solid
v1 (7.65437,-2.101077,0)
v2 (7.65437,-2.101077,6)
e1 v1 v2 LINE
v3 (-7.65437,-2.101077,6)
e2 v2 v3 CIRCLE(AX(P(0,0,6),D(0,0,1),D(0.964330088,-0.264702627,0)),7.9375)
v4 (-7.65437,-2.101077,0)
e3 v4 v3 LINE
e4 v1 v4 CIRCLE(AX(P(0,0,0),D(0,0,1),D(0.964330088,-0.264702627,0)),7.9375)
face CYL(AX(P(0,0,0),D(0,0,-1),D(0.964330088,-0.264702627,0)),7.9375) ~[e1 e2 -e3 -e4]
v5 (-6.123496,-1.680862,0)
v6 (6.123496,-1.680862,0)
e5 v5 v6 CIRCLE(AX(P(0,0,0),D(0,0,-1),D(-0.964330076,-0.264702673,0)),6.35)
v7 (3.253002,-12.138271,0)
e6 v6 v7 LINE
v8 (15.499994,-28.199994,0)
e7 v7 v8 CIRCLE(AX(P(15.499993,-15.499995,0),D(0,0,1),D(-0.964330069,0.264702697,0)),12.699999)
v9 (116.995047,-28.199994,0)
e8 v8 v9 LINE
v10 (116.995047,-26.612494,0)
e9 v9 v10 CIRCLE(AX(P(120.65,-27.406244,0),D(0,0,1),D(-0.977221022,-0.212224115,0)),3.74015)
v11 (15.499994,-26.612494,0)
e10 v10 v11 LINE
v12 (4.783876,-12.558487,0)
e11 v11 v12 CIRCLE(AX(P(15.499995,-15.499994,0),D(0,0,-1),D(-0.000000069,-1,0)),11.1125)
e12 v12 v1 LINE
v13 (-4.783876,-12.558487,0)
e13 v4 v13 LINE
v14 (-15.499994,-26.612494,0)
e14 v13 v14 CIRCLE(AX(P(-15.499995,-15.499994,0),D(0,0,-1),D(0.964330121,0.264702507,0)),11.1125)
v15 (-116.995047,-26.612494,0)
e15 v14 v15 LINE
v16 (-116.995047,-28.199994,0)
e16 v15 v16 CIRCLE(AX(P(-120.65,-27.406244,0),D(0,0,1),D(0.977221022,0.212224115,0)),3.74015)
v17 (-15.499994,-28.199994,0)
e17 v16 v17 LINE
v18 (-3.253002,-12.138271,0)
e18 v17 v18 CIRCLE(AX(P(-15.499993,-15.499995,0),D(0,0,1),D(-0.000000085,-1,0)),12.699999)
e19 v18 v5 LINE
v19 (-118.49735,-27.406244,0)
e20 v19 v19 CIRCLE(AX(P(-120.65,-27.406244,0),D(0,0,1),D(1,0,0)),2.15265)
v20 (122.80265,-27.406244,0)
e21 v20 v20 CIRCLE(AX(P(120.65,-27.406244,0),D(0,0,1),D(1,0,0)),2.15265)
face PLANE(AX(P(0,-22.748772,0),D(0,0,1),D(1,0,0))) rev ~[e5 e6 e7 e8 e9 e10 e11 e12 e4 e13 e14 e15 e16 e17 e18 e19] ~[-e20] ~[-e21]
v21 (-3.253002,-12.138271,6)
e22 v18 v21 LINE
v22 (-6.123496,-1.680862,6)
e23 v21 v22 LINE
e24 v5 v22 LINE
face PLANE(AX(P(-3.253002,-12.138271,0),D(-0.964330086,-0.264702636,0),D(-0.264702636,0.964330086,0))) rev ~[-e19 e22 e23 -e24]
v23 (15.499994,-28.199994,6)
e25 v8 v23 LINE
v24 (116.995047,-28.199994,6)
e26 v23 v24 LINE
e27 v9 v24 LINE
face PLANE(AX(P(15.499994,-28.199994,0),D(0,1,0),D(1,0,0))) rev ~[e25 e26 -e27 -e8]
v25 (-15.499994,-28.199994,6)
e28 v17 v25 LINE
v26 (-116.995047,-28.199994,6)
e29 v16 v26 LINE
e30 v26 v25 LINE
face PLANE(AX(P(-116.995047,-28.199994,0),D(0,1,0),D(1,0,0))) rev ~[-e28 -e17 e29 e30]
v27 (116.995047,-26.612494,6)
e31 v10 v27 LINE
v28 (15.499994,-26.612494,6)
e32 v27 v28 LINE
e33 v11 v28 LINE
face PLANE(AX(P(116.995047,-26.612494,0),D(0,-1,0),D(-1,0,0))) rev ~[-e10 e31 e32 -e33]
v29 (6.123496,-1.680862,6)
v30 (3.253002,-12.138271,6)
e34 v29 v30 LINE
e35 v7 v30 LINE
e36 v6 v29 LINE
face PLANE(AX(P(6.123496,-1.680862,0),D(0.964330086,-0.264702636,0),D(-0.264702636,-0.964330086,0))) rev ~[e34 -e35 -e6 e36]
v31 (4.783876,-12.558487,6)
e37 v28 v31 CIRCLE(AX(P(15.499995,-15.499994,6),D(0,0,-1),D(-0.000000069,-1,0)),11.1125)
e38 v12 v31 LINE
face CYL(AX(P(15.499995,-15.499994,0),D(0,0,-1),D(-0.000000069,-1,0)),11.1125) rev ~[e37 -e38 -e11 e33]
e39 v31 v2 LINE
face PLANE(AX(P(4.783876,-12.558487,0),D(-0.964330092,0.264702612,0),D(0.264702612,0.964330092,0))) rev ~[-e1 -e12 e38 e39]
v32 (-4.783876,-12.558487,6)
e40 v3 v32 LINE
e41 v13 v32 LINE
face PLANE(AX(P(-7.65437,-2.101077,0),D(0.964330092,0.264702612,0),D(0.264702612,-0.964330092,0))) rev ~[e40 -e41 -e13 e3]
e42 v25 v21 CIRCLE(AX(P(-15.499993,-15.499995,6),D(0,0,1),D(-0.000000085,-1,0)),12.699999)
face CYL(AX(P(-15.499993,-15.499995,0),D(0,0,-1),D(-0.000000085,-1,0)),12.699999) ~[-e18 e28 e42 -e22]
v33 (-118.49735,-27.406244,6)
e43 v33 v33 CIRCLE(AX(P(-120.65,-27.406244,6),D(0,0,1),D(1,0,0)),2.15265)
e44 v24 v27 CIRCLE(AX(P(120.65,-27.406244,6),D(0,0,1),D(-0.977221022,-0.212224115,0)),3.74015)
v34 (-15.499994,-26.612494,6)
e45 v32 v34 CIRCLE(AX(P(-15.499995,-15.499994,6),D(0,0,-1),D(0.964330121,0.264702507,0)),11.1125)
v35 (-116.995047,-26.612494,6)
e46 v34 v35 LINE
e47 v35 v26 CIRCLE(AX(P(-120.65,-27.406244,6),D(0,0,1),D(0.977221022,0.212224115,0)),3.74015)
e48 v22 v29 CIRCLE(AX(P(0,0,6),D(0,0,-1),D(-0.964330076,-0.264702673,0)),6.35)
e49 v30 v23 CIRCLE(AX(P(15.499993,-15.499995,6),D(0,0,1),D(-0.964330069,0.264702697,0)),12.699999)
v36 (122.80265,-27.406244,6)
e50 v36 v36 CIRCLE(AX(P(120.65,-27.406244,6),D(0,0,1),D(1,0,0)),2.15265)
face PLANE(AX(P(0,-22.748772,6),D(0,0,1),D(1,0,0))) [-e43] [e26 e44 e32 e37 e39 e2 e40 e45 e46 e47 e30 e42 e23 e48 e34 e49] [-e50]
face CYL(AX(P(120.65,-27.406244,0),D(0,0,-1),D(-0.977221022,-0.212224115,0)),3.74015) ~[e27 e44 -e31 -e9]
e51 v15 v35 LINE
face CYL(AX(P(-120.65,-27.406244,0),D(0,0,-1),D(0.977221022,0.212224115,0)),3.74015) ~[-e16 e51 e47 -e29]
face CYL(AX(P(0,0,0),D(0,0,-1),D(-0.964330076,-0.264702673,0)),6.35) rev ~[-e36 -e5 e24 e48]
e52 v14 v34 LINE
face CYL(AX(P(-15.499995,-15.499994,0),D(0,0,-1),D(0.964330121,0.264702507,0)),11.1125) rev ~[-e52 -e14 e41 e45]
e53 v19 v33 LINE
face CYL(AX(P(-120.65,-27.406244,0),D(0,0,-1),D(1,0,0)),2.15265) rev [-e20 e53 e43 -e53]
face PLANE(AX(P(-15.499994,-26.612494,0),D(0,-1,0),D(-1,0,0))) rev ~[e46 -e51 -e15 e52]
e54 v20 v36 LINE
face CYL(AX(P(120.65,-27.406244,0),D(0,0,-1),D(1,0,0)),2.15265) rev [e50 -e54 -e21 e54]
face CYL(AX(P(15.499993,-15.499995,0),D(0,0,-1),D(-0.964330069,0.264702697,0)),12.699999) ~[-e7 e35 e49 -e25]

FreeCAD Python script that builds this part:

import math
import FreeCAD as App
import Part
import Sketcher
from FreeCAD import Vector
Q = App.Units.Quantity

doc = App.newDocument("Part")
body = doc.addObject("PartDesign::Body", "Body")

# Sketch on XY plane
sketch1 = body.newObject("Sketcher::SketchObject", "Sketch")
sketch1.AttachmentSupport = (doc.getObject("XY_Plane"), [""])
sketch1.MapMode = "FlatFace"
sketch1.addGeometry([
    Part.ArcOfCircle(Part.Circle(Vector(0, 0, 0), Vector(0, 0, 1), 6.35), math.radians(-15.349286), math.radians(195.349286)),  # 0
    Part.LineSegment(Vector(6.123496, -1.680862, 0), Vector(3.253002, -12.138271, 0)),  # 1
    Part.ArcOfCircle(Part.Circle(Vector(15.499993, -15.499995, 0), Vector(0, 0, 1), 12.699999), math.radians(164.650712), math.radians(270.000005)),  # 2
    Part.LineSegment(Vector(15.499994, -28.199994, 0), Vector(116.995047, -28.199994, 0)),  # 3
    Part.ArcOfCircle(Part.Circle(Vector(120.65, -27.406244, 0), Vector(0, 0, 1), 3.74015), math.radians(-167.747277), math.radians(167.747277)),  # 4
    Part.LineSegment(Vector(116.995047, -26.612494, 0), Vector(15.499994, -26.612494, 0)),  # 5
    Part.ArcOfCircle(Part.Circle(Vector(15.499995, -15.499994, 0), Vector(0, 0, 1), 11.1125), math.radians(164.650724), math.radians(269.999996)),  # 6
    Part.LineSegment(Vector(4.783876, -12.558487, 0), Vector(7.65437, -2.101077, 0)),  # 7
    Part.ArcOfCircle(Part.Circle(Vector(0, 0, 0), Vector(0, 0, 1), 7.9375), math.radians(-15.349284), math.radians(195.349284)),  # 8
    Part.LineSegment(Vector(-7.65437, -2.101077, 0), Vector(-4.783876, -12.558487, 0)),  # 9
    Part.ArcOfCircle(Part.Circle(Vector(-15.499995, -15.499994, 0), Vector(0, 0, 1), 11.1125), math.radians(-89.999996), math.radians(15.349276)),  # 10
    Part.LineSegment(Vector(-15.499994, -26.612494, 0), Vector(-116.995047, -26.612494, 0)),  # 11
    Part.ArcOfCircle(Part.Circle(Vector(-120.65, -27.406244, 0), Vector(0, 0, 1), 3.74015), math.radians(12.252723), math.radians(347.747277)),  # 12
    Part.LineSegment(Vector(-116.995047, -28.199994, 0), Vector(-15.499994, -28.199994, 0)),  # 13
    Part.ArcOfCircle(Part.Circle(Vector(-15.499993, -15.499995, 0), Vector(0, 0, 1), 12.699999), math.radians(-90.000005), math.radians(15.349288)),  # 14
    Part.LineSegment(Vector(-3.253002, -12.138271, 0), Vector(-6.123496, -1.680862, 0)),  # 15
    Part.Circle(Vector(-120.65, -27.406244, 0), Vector(0, 0, 1), 2.15265),  # 16
    Part.Circle(Vector(120.65, -27.406244, 0), Vector(0, 0, 1), 2.15265),  # 17
], False)
sketch1.addConstraint([
    Sketcher.Constraint("Coincident", 0, 1, 1, 1),
    Sketcher.Constraint("Coincident", 1, 2, 2, 1),
    Sketcher.Constraint("Coincident", 2, 2, 3, 1),
    Sketcher.Constraint("Coincident", 3, 2, 4, 1),
    Sketcher.Constraint("Coincident", 4, 2, 5, 1),
    Sketcher.Constraint("Coincident", 5, 2, 6, 2),
    Sketcher.Constraint("Coincident", 6, 1, 7, 1),
    Sketcher.Constraint("Coincident", 7, 2, 8, 1),
    Sketcher.Constraint("Coincident", 8, 2, 9, 1),
    Sketcher.Constraint("Coincident", 9, 2, 10, 2),
    Sketcher.Constraint("Coincident", 10, 1, 11, 1),
    Sketcher.Constraint("Coincident", 11, 2, 12, 1),
    Sketcher.Constraint("Coincident", 12, 2, 13, 1),
    Sketcher.Constraint("Coincident", 13, 2, 14, 1),
    Sketcher.Constraint("Coincident", 14, 2, 15, 1),
    Sketcher.Constraint("Coincident", 15, 2, 0, 2),
    Sketcher.Constraint("Horizontal", 3),
    Sketcher.Constraint("Horizontal", 5),
    Sketcher.Constraint("Horizontal", 11),
    Sketcher.Constraint("Horizontal", 13),
    Sketcher.Constraint("Coincident", 0, 3, -1, 1),
    Sketcher.Constraint("Coincident", 8, 3, -1, 1),
    Sketcher.Constraint("Coincident", 6, 3, 2, 3),
    Sketcher.Constraint("Coincident", 14, 3, 10, 3),
    Sketcher.Constraint("Coincident", 16, 3, 12, 3),
    Sketcher.Constraint("Coincident", 17, 3, 4, 3),
    Sketcher.Constraint("Radius", 2, Q("0.5 in")),
    Sketcher.Constraint("Radius", 14, Q("0.5 in")),
    Sketcher.Constraint("Radius", 0, Q("0.25 in")),
    Sketcher.Constraint("Radius", 6, Q("0.4375 in")),
    Sketcher.Constraint("Radius", 8, Q("0.3125 in")),
    Sketcher.Constraint("Radius", 10, Q("0.4375 in")),
    Sketcher.Constraint("Diameter", 16, Q("0.1695 in")),
    Sketcher.Constraint("Diameter", 17, Q("0.1695 in")),
    Sketcher.Constraint("DistanceX", -1, 1, 4, 3, Q("4.75 in")),
    Sketcher.Constraint("DistanceX", 12, 3, -1, 1, Q("4.75 in")),
    Sketcher.Constraint("Radius", 4, Q("3.74015 mm")),
    Sketcher.Constraint("Radius", 12, Q("3.74015 mm")),
    Sketcher.Constraint("DistanceY", 4, 3, 2, 3, Q("0.46875 in")),
    Sketcher.Constraint("DistanceY", 4, 3, 10, 3, Q("0.46875 in")),
    Sketcher.Constraint("DistanceY", 12, 3, 10, 3, Q("0.46875 in")),
    Sketcher.Constraint("DistanceX", -1, 1, 1, 2, Q("3.253002 mm")),
    Sketcher.Constraint("DistanceX", 14, 2, -1, 1, Q("3.253002 mm")),
    Sketcher.Constraint("DistanceX", 0, 1, 6, 3, Q("9.376499 mm")),
    Sketcher.Constraint("DistanceX", 0, 1, 2, 2, Q("9.376498 mm")),
    Sketcher.Constraint("DistanceX", 0, 1, 5, 2, Q("9.376498 mm")),
    Sketcher.Constraint("Distance", 1, Q("10.844221 mm")),
    Sketcher.Constraint("Distance", 15, Q("10.844221 mm")),
    Sketcher.Constraint("DistanceX", 3, 1, 3, 2, Q("101.495053 mm")),
    Sketcher.Constraint("DistanceX", 11, 2, 11, 1, Q("101.495053 mm")),
    Sketcher.Constraint("DistanceX", 13, 1, 13, 2, Q("101.495053 mm")),
    Sketcher.Constraint("DistanceX", -1, 1, 7, 2, Q("7.65437 mm")),
    Sketcher.Constraint("DistanceX", 8, 2, -1, 1, Q("7.65437 mm")),
    Sketcher.Constraint("DistanceY", 14, 2, -1, 1, Q("12.138271 mm")),
    Sketcher.Constraint("DistanceX", 6, 1, 0, 1, Q("1.33962 mm")),
    Sketcher.Constraint("DistanceX", 9, 2, 6, 1, Q("9.567752 mm")),
])
pad1 = body.newObject("PartDesign::Pad", "Pad")
pad1.Profile = sketch1
pad1.Length = 6

doc.recompute()
